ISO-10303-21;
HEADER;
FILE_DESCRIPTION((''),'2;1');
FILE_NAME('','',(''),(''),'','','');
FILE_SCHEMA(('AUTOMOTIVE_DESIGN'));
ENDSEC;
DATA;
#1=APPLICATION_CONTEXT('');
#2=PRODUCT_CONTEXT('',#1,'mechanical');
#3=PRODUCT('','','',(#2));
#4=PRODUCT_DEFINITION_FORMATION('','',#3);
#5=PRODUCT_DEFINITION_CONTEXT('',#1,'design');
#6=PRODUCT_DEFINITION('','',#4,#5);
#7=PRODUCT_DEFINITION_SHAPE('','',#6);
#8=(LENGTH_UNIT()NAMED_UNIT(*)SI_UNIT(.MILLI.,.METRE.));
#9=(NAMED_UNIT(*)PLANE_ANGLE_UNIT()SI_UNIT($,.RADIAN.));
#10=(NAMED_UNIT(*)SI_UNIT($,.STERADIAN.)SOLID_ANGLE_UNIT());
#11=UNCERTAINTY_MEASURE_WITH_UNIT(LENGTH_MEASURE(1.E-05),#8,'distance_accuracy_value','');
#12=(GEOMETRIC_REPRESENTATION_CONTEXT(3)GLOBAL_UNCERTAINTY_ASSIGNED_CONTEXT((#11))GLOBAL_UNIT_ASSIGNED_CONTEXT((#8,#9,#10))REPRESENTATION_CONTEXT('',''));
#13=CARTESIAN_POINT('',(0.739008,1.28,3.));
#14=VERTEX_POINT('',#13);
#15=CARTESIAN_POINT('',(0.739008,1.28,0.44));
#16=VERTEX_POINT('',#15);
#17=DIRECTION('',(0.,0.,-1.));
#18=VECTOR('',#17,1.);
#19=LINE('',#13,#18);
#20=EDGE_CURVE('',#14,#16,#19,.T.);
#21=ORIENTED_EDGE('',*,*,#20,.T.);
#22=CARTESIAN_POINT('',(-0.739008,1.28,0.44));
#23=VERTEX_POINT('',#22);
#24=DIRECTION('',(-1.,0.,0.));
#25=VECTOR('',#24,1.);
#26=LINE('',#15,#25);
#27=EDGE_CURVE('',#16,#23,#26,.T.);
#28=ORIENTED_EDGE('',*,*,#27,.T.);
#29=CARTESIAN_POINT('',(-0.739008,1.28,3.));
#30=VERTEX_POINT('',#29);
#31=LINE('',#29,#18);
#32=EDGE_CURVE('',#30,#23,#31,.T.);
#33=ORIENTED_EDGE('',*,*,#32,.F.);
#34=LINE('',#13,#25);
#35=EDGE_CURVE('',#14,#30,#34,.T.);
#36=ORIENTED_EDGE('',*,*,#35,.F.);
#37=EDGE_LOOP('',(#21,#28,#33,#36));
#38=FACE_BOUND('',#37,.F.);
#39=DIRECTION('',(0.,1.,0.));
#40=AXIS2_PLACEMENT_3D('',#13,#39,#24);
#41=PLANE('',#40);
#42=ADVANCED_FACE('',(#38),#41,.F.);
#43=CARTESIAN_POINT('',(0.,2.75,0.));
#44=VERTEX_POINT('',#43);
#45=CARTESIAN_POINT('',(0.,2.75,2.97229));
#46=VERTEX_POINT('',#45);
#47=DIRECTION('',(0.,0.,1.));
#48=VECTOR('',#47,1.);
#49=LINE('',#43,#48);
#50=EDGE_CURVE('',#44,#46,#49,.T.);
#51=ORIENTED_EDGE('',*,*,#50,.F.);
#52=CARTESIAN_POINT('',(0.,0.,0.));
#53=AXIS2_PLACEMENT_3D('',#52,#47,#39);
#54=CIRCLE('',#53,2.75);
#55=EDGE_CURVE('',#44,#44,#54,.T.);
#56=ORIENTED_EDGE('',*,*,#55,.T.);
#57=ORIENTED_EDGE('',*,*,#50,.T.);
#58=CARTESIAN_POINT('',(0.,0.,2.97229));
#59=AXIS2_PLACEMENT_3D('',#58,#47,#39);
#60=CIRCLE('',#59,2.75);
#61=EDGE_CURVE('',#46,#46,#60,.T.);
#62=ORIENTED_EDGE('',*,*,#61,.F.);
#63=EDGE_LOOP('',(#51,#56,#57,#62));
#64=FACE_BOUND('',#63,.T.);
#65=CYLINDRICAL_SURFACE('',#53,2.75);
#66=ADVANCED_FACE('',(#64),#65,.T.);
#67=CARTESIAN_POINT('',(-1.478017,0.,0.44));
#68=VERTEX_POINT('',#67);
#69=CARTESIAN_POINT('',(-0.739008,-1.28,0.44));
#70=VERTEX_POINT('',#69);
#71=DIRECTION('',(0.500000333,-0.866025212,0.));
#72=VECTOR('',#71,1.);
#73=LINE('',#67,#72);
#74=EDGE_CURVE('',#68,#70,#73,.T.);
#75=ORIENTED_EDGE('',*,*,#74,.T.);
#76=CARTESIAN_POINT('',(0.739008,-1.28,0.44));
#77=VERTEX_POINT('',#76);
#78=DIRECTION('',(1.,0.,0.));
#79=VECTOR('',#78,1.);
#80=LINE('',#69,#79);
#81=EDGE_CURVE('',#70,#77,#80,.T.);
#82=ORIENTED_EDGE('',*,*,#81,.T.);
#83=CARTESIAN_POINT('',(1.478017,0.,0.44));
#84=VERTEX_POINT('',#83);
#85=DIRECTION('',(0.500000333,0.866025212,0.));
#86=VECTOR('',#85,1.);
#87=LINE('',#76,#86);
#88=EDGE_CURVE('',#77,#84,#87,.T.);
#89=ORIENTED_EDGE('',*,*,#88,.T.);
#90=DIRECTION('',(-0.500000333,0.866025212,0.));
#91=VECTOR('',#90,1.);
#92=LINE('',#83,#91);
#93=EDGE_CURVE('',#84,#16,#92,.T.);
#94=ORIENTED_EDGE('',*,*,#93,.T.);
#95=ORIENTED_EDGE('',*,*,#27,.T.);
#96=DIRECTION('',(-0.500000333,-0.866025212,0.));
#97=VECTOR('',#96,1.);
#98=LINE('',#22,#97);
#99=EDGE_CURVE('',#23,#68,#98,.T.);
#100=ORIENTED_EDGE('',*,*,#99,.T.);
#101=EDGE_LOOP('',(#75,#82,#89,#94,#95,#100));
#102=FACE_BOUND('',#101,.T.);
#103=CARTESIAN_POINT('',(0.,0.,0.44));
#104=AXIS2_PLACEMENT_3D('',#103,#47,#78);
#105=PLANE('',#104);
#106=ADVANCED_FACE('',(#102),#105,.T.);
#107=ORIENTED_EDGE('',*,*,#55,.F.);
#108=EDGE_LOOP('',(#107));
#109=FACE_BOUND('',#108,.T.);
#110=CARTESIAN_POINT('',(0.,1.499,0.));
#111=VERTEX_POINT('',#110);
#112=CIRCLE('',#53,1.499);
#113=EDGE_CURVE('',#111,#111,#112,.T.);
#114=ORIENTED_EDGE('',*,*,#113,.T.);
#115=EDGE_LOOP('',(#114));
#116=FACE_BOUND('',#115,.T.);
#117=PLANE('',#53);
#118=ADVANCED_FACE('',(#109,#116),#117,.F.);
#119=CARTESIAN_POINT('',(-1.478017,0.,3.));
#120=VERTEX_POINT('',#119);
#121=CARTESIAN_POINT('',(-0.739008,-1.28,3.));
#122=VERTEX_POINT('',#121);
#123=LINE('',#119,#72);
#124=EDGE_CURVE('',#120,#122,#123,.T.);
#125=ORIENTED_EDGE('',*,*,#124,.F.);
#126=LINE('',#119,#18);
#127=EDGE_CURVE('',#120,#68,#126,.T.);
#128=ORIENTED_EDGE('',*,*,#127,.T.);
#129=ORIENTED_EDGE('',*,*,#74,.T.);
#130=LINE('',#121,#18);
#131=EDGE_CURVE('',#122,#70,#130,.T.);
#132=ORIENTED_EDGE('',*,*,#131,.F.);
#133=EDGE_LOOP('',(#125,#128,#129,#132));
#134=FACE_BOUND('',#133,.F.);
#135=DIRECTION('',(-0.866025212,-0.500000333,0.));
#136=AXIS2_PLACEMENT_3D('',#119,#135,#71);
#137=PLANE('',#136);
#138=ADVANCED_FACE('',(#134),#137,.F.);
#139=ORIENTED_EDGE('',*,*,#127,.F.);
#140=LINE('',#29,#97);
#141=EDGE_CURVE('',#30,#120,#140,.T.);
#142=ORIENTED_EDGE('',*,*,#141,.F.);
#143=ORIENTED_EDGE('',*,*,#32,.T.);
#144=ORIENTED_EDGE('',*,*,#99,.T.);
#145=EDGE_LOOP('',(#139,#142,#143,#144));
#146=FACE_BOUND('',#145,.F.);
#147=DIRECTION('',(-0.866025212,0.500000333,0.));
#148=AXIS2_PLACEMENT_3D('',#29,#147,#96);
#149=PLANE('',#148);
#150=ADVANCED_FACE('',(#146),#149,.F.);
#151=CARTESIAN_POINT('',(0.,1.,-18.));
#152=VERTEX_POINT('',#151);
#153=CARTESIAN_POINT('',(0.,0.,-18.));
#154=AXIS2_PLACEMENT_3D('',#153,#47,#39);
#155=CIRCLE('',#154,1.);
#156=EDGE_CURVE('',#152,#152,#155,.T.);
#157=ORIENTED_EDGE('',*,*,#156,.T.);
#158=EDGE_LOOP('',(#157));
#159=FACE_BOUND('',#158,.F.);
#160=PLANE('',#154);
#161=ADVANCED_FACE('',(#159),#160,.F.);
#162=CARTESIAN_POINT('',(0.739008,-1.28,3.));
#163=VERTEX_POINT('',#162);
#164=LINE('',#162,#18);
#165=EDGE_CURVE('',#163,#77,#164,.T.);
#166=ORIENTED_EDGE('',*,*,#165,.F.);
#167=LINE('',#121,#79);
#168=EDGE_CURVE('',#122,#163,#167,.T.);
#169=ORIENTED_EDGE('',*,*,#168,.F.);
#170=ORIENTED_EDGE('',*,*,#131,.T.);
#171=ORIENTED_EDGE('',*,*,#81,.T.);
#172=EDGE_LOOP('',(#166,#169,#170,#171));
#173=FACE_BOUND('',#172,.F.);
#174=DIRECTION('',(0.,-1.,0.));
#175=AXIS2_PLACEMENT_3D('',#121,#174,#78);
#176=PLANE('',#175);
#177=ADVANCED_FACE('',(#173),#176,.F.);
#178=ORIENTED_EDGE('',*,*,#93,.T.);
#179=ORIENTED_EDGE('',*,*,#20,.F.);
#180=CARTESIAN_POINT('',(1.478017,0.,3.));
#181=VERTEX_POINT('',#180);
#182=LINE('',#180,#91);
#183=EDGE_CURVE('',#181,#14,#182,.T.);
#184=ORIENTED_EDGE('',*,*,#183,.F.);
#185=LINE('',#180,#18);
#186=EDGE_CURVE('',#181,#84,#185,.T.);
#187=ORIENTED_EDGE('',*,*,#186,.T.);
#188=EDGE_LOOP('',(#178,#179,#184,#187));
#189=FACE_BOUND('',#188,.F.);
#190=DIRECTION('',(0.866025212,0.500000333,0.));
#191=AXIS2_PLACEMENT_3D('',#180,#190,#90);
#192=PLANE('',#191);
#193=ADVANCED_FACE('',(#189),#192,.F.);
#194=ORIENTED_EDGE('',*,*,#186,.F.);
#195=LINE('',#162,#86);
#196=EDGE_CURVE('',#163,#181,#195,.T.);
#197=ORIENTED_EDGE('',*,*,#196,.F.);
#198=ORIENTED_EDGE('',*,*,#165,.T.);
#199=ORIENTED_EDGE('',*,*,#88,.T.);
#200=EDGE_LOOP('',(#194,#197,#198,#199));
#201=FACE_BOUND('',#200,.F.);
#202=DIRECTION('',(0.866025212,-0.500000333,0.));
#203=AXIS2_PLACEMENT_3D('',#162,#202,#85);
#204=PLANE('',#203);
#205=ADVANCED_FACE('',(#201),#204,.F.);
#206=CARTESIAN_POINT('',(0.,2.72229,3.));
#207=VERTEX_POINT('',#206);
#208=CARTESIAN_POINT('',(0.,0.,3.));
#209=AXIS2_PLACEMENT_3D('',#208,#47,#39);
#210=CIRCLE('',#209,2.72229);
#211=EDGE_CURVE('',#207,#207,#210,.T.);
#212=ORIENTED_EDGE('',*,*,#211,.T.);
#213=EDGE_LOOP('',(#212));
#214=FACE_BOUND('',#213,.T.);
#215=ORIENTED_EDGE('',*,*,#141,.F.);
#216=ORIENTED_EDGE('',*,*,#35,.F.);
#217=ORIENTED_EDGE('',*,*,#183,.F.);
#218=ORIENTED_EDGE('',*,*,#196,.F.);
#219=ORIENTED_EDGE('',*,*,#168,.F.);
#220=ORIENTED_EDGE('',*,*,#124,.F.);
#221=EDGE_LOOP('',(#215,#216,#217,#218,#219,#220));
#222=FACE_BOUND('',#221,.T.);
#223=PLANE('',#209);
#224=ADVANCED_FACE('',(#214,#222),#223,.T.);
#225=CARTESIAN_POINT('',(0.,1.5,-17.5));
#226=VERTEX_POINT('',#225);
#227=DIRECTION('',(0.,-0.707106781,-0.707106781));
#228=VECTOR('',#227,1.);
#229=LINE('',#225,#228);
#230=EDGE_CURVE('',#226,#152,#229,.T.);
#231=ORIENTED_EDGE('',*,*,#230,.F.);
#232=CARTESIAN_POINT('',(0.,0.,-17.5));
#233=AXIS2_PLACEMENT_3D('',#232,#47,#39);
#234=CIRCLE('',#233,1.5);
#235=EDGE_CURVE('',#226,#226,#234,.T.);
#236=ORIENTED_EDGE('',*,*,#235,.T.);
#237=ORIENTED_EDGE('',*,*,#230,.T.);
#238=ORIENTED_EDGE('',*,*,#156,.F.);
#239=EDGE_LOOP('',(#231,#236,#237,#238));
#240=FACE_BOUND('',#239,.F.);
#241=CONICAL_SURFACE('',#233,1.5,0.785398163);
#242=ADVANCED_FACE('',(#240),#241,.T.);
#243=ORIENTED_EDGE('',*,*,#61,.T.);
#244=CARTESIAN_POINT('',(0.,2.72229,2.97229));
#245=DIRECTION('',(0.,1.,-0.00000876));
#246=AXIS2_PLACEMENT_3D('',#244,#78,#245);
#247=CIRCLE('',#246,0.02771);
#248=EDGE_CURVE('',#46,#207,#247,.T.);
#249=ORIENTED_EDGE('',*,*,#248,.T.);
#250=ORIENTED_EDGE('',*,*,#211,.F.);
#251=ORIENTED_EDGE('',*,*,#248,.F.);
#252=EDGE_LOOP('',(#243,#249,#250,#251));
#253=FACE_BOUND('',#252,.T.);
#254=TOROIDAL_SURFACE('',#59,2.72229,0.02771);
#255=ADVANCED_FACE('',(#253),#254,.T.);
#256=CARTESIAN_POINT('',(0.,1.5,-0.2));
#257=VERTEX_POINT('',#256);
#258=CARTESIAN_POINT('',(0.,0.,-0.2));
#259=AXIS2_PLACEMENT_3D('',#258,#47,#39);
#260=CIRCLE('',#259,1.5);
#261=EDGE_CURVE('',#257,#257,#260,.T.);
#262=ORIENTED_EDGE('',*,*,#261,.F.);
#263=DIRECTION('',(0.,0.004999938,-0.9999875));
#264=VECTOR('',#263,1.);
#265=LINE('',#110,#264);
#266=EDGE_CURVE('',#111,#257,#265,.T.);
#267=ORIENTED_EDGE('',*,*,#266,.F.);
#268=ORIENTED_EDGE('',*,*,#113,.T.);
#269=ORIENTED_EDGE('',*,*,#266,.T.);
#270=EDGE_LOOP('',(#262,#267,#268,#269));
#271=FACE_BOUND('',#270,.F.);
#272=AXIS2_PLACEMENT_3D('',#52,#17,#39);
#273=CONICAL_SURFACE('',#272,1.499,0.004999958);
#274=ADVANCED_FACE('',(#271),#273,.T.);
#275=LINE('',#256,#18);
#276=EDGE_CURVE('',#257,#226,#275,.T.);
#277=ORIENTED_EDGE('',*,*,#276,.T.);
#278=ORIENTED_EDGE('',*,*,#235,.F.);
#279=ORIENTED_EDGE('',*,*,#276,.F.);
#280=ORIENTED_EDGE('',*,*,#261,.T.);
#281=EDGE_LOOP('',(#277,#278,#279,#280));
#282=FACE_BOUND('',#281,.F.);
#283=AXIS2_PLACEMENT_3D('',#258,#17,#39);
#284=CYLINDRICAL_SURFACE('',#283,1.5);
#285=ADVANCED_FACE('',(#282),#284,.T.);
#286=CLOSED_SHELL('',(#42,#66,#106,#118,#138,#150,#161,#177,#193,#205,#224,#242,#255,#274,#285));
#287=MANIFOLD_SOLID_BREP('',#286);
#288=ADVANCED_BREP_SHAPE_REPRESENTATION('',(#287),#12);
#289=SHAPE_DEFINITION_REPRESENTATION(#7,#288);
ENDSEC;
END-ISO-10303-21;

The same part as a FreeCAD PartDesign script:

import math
import FreeCAD as App
import Part
import Sketcher
from FreeCAD import Vector
Q = App.Units.Quantity

doc = App.newDocument("Part")
body = doc.addObject("PartDesign::Body", "Body")

# Sketch on YZ plane
sketch1 = body.newObject("Sketcher::SketchObject", "Sketch")
sketch1.AttachmentSupport = (doc.getObject("YZ_Plane"), [""])
sketch1.MapMode = "FlatFace"
sketch1.addGeometry(Part.LineSegment(Vector(1.499, 0, 0), Vector(2.75, 0, 0)), False)
sketch1.addGeometry(Part.LineSegment(Vector(2.75, 0, 0), Vector(2.75, 2.972, 0)), False)
sketch1.addGeometry(Part.ArcOfCircle(Part.Circle(Vector(2.722, 2.972, 0), Vector(0, 0, 1), 0.028), math.radians(0), math.radians(90)), False)
sketch1.addGeometry(Part.LineSegment(Vector(2.722, 3, 0), Vector(0, 3, 0)), False)
sketch1.addGeometry(Part.LineSegment(Vector(0, 3, 0), Vector(0, -18, 0)), False)
sketch1.addGeometry(Part.LineSegment(Vector(0, -18, 0), Vector(1, -18, 0)), False)
sketch1.addGeometry(Part.LineSegment(Vector(1, -18, 0), Vector(1.5, -17.5, 0)), False)
sketch1.addGeometry(Part.LineSegment(Vector(1.5, -17.5, 0), Vector(1.5, -0.2, 0)), False)
sketch1.addGeometry(Part.LineSegment(Vector(1.5, -0.2, 0), Vector(1.499, 0, 0)), False)
sketch1.addConstraint(Sketcher.Constraint("Coincident", 0, 2, 1, 1))
sketch1.addConstraint(Sketcher.Constraint("Coincident", 1, 2, 2, 1))
sketch1.addConstraint(Sketcher.Constraint("Coincident", 2, 2, 3, 1))
sketch1.addConstraint(Sketcher.Constraint("Coincident", 3, 2, 4, 1))
sketch1.addConstraint(Sketcher.Constraint("Coincident", 4, 2, 5, 1))
sketch1.addConstraint(Sketcher.Constraint("Coincident", 5, 2, 6, 1))
sketch1.addConstraint(Sketcher.Constraint("Coincident", 6, 2, 7, 1))
sketch1.addConstraint(Sketcher.Constraint("Coincident", 7, 2, 8, 1))
sketch1.addConstraint(Sketcher.Constraint("Coincident", 8, 2, 0, 1))
sketch1.addConstraint(Sketcher.Constraint("Horizontal", 0))
sketch1.addConstraint(Sketcher.Constraint("Vertical", 1))
sketch1.addConstraint(Sketcher.Constraint("Horizontal", 3))
sketch1.addConstraint(Sketcher.Constraint("Vertical", 4))
sketch1.addConstraint(Sketcher.Constraint("Horizontal", 5))
sketch1.addConstraint(Sketcher.Constraint("Vertical", 7))
sketch1.addConstraint(Sketcher.Constraint("PointOnObject", 0, 2, -1))
sketch1.addConstraint(Sketcher.Constraint("PointOnObject", 3, 2, -2))
sketch1.addConstraint(Sketcher.Constraint("Horizontal", 2, 3, 1, 2))
sketch1.addConstraint(Sketcher.Constraint("DistanceX", 5, 1, 5, 2, Q("1 mm")))
sketch1.addConstraint(Sketcher.Constraint("DistanceY", 4, 2, 4, 1, Q("21 mm")))
sketch1.addConstraint(Sketcher.Constraint("Angle", 6, Q("45 deg")))
sketch1.addConstraint(Sketcher.Constraint("DistanceY", 7, 1, 7, 2, Q("17.3 mm")))
sketch1.addConstraint(Sketcher.Constraint("DistanceY", -1, 1, 2, 2, Q("3 mm")))
sketch1.addConstraint(Sketcher.Constraint("DistanceX", -1, 1, 6, 2, Q("1.5 mm")))
sketch1.addConstraint(Sketcher.Constraint("DistanceX", 0, 1, 0, 2, Q("1.251 mm")))
sketch1.addConstraint(Sketcher.Constraint("DistanceX", -1, 1, 0, 2, Q("2.75 mm")))
sketch1.addConstraint(Sketcher.Constraint("Radius", 2, Q("0.02771 mm")))
sketch1.addConstraint(Sketcher.Constraint("DistanceX", 3, 2, 3, 1, Q("2.72229 mm")))
revolution = body.newObject("PartDesign::Revolution", "Revolution")
revolution.Profile = sketch1
revolution.ReferenceAxis = (sketch1, ["V_Axis"])
revolution.Angle = 360

# Sketch on XY plane
sketch2 = body.newObject("Sketcher::SketchObject", "Sketch001")
sketch2.AttachmentSupport = (doc.getObject("XY_Plane"), [""])
sketch2.MapMode = "FlatFace"
sketch2.AttachmentOffset = App.Placement(Vector(0, 0, 3), App.Rotation())
sketch2.addGeometry(Part.LineSegment(Vector(1.5, 0, 0), Vector(0.7, 1.3, 0)), False)
sketch2.addGeometry(Part.LineSegment(Vector(0.7, 1.3, 0), Vector(-0.7, 1.3, 0)), False)
sketch2.addGeometry(Part.LineSegment(Vector(-0.7, 1.3, 0), Vector(-1.5, 0, 0)), False)
sketch2.addGeometry(Part.LineSegment(Vector(-1.5, 0, 0), Vector(-0.7, -1.3, 0)), False)
sketch2.addGeometry(Part.LineSegment(Vector(-0.7, -1.3, 0), Vector(0.7, -1.3, 0)), False)
sketch2.addGeometry(Part.LineSegment(Vector(0.7, -1.3, 0), Vector(1.5, 0, 0)), False)
sketch2.addConstraint(Sketcher.Constraint("Coincident", 0, 2, 1, 1))
sketch2.addConstraint(Sketcher.Constraint("Coincident", 1, 2, 2, 1))
sketch2.addConstraint(Sketcher.Constraint("Coincident", 2, 2, 3, 1))
sketch2.addConstraint(Sketcher.Constraint("Coincident", 3, 2, 4, 1))
sketch2.addConstraint(Sketcher.Constraint("Coincident", 4, 2, 5, 1))
sketch2.addConstraint(Sketcher.Constraint("Coincident", 5, 2, 0, 1))
sketch2.addConstraint(Sketcher.Constraint("Horizontal", 1))
sketch2.addConstraint(Sketcher.Constraint("Horizontal", 4))
sketch2.addConstraint(Sketcher.Constraint("Symmetric", 0, 2, 3, 2, -1, 1))
sketch2.addConstraint(Sketcher.Constraint("Symmetric", 2, 2, 5, 2, -1, 1))
sketch2.addConstraint(Sketcher.Constraint("PointOnObject", 2, 2, -1))
sketch2.addConstraint(Sketcher.Constraint("Parallel", 2, 5))
sketch2.addConstraint(Sketcher.Constraint("Vertical", 1, 2, 3, 2))
sketch2.addConstraint(Sketcher.Constraint("DistanceY", -1, 1, 0, 2, Q("1.28 mm")))
sketch2.addConstraint(Sketcher.Constraint("DistanceX", 1, 2, 1, 1, Q("1.478016 mm")))
sketch2.addConstraint(Sketcher.Constraint("DistanceX", 2, 2, 1, 2, Q("0.739009 mm")))
pocket1 = body.newObject("PartDesign::Pocket", "Pocket")
pocket1.Profile = sketch2
pocket1.Length = 2.56

doc.recompute()
